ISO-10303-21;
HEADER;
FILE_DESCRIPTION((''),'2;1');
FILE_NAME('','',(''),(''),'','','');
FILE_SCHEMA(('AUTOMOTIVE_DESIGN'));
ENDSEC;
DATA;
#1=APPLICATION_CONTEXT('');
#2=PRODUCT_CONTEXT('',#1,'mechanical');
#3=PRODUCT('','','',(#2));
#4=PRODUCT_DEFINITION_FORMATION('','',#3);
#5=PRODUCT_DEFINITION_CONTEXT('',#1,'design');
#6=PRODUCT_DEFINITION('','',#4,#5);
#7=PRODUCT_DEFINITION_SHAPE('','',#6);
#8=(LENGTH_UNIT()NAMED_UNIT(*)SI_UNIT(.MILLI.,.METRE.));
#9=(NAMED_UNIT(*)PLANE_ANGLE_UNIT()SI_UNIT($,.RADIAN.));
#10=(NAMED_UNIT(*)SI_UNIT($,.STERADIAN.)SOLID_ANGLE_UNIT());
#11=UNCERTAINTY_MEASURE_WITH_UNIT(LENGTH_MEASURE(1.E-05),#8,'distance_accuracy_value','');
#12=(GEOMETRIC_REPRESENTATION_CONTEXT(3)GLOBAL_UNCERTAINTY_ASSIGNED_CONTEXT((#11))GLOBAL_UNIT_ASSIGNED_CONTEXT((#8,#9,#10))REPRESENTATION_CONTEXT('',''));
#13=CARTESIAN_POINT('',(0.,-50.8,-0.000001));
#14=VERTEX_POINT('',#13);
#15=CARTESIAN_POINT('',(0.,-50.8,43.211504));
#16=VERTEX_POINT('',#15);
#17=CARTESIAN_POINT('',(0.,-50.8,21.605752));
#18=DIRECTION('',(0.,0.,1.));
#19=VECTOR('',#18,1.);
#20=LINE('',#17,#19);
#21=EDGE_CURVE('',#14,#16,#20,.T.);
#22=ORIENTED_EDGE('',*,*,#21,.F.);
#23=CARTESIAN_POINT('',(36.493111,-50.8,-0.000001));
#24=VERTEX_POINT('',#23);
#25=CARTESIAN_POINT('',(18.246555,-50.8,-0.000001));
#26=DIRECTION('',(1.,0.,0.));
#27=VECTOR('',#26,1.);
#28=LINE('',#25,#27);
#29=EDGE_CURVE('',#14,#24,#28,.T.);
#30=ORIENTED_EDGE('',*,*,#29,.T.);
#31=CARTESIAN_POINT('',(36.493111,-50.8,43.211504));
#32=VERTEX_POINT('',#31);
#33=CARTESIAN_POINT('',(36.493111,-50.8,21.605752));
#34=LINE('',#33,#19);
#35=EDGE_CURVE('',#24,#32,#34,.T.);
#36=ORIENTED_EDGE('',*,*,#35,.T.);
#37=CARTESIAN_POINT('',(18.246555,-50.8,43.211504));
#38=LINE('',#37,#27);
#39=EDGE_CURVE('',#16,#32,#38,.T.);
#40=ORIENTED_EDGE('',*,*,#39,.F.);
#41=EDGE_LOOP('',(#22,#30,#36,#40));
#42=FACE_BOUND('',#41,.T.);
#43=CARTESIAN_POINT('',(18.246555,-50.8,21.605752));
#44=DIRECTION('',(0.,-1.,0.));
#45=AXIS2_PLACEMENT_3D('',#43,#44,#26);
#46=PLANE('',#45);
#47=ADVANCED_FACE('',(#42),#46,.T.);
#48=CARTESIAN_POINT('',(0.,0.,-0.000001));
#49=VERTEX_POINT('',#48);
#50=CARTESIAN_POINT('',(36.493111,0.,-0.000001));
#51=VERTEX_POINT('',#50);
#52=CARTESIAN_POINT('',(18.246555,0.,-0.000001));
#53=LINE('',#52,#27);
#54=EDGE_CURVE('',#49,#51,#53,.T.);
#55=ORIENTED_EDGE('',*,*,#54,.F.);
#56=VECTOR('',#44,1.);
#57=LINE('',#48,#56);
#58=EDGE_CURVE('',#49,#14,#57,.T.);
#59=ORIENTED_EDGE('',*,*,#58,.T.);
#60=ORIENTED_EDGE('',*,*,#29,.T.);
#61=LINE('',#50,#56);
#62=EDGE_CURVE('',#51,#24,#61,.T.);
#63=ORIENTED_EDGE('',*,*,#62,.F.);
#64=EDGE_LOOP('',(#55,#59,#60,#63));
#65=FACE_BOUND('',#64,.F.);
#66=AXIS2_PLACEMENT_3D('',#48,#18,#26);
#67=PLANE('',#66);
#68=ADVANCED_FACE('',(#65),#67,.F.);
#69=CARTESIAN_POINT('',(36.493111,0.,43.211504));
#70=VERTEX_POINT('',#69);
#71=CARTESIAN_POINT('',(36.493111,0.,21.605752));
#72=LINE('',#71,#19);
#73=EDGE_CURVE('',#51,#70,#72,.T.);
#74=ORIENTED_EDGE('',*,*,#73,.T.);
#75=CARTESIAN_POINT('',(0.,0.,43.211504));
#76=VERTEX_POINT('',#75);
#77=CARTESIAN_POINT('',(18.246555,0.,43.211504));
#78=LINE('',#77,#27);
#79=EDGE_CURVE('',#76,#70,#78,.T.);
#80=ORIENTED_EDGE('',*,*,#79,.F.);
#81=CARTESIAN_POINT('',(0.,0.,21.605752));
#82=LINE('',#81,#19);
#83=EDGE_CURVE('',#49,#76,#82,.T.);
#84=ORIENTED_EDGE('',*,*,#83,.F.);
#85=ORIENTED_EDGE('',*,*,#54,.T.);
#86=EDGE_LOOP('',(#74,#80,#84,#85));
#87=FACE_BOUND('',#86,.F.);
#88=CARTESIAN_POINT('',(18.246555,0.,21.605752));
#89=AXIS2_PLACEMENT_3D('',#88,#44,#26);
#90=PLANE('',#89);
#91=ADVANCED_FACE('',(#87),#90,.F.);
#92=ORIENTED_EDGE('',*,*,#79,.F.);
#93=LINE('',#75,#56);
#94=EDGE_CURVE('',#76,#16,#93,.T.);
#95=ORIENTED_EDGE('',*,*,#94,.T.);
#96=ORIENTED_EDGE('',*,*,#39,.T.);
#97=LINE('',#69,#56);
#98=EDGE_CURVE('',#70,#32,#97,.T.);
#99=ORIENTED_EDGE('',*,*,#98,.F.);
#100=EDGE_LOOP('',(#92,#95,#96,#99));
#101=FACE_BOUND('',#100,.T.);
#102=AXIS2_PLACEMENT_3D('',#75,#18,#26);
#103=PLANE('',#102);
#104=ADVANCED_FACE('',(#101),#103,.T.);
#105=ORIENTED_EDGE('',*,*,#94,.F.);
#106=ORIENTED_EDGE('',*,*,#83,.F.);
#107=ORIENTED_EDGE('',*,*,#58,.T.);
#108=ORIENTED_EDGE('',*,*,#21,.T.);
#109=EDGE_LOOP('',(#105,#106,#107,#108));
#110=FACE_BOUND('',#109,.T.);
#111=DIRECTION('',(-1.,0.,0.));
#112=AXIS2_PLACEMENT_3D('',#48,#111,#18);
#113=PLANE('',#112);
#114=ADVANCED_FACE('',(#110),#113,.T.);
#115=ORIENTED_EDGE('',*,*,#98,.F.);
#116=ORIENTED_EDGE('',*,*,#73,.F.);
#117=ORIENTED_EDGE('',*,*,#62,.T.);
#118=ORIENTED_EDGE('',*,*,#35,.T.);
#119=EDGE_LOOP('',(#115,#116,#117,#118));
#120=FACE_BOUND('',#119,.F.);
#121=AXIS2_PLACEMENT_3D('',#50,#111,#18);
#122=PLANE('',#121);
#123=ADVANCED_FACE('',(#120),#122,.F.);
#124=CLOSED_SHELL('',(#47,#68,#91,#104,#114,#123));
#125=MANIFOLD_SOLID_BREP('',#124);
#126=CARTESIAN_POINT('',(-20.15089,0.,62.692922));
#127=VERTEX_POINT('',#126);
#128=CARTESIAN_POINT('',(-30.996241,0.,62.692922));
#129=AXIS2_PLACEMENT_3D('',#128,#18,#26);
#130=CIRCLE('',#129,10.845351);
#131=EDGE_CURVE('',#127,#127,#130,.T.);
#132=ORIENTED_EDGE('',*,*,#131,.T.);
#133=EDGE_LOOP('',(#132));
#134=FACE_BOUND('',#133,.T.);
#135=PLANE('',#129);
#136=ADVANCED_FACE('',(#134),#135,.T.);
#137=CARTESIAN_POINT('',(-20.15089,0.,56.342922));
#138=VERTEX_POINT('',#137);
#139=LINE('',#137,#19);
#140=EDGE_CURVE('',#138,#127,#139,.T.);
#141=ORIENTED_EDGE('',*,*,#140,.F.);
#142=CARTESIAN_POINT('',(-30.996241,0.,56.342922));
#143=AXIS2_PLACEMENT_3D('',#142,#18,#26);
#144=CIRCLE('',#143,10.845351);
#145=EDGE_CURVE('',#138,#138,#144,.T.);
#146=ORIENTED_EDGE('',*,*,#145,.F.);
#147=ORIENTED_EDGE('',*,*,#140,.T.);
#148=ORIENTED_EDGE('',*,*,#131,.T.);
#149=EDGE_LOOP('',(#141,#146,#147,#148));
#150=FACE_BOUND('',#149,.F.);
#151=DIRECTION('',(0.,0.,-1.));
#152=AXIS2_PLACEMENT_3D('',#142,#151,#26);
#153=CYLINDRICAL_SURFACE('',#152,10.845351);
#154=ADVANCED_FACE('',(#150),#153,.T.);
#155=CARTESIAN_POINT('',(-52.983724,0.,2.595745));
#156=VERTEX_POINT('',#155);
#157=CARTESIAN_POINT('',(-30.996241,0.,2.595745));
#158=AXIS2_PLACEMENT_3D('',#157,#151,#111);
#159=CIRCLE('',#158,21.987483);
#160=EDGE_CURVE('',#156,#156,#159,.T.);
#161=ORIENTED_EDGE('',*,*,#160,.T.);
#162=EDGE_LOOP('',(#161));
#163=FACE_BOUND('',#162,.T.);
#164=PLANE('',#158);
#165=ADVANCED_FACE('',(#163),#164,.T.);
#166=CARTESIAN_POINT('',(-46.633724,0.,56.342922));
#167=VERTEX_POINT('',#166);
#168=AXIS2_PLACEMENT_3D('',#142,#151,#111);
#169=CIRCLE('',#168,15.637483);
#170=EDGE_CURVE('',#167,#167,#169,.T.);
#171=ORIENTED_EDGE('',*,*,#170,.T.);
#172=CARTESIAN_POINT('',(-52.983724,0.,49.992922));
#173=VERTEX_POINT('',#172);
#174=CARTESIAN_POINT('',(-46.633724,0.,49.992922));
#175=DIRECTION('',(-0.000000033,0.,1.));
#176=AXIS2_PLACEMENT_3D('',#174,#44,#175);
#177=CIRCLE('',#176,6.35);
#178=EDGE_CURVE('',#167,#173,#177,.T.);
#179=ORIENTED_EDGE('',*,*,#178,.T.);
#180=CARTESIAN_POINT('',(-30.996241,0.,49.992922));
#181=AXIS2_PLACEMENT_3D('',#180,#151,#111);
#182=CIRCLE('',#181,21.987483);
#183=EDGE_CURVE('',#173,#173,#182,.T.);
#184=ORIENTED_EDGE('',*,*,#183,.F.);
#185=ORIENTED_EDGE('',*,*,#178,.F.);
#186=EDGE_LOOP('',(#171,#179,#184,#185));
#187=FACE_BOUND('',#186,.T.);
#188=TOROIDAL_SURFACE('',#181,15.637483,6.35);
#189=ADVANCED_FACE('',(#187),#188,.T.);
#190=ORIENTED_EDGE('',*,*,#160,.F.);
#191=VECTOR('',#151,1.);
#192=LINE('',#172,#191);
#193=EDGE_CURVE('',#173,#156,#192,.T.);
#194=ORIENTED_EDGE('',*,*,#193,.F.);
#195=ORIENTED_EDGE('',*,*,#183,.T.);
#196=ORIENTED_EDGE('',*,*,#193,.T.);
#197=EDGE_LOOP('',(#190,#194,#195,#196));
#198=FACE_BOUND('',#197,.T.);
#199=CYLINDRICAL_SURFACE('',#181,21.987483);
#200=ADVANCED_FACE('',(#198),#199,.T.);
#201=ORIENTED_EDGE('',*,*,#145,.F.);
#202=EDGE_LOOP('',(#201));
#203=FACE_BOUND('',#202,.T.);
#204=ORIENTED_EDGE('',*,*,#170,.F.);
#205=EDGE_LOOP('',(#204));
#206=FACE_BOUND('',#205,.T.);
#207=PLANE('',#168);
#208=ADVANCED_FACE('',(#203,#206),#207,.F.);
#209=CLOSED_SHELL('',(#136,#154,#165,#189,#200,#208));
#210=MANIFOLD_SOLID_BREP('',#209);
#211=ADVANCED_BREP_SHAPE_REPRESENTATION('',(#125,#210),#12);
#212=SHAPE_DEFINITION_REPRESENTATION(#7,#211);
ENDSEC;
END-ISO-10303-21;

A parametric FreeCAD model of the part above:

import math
import FreeCAD as App
import Part
import Sketcher

V = App.Vector
Q = App.Units.Quantity


def add_polygon(sketch, points):
    """Adds a closed chain of lines whose ends are joined by coincident constraints."""
    first, n = sketch.GeometryCount, len(points)
    for a, b in zip(points, points[1:] + points[:1]):
        sketch.addGeometry(Part.LineSegment(App.Vector(*a, 0), App.Vector(*b, 0)), False)
    for i in range(n):
        sketch.addConstraint(Sketcher.Constraint("Coincident", first + i, 2, first + (i + 1) % n, 1))

doc = App.newDocument("Part")
body = doc.addObject("PartDesign::Body", "Body")

# Sketch on XZ plane
sketch1 = body.newObject("Sketcher::SketchObject", "Sketch")
sketch1.AttachmentSupport = (doc.getObject("XZ_Plane"), [""])
sketch1.MapMode = "FlatFace"
add_polygon(sketch1, [(0, 43), (0, 0), (36, 0), (36, 43)])  # lines 0-3
sketch1.addConstraint([
    Sketcher.Constraint("Vertical", 0),
    Sketcher.Constraint("Horizontal", 1),
    Sketcher.Constraint("Vertical", 2),
    Sketcher.Constraint("Horizontal", 3),
    Sketcher.Constraint("Coincident", 0, 2, -1, 1),
    Sketcher.Constraint("DistanceX", 1, 1, 1, 2, 36.493111),
    Sketcher.Constraint("DistanceY", 0, 2, 0, 1, 43.211505),
])
pad1 = body.newObject("PartDesign::Pad", "Pad")
pad1.Profile = sketch1
pad1.Length = Q("2 in")
body2 = doc.addObject("PartDesign::Body", "Body001")

# Sketch on XZ plane
sketch2 = body2.newObject("Sketcher::SketchObject", "Sketch001")
sketch2.AttachmentSupport = (doc.getObject("XZ_Plane001"), [""])
sketch2.MapMode = "FlatFace"
sketch2.addGeometry([
    Part.LineSegment(V(-31, 56, 0), V(-47, 56, 0)),  # 0
    Part.ArcOfCircle(Part.Circle(V(-47, 50, 0), V(0, 0, 1), 6), math.radians(90), math.radians(180)),  # 1
    Part.LineSegment(V(-53, 50, 0), V(-53, 3, 0)),  # 2
    Part.LineSegment(V(-53, 3, 0), V(-31, 3, 0)),  # 3
    Part.LineSegment(V(-31, 3, 0), V(-31, 56, 0)),  # 4
], False)
sketch2.addGeometry(Part.LineSegment(V(-31, 56, 0), V(-31, 3, 0)), True)  # axis
sketch2.addConstraint([
    Sketcher.Constraint("Tangent", 0, 2, 1, 1),
    Sketcher.Constraint("Tangent", 1, 2, 2, 1),
    Sketcher.Constraint("Coincident", 2, 2, 3, 1),
    Sketcher.Constraint("Coincident", 3, 2, 4, 1),
    Sketcher.Constraint("Coincident", 4, 2, 0, 1),
    Sketcher.Constraint("Horizontal", 0),
    Sketcher.Constraint("Vertical", 2),
    Sketcher.Constraint("Horizontal", 3),
    Sketcher.Constraint("Vertical", 4),
    Sketcher.Constraint("Vertical", 5),
    Sketcher.Constraint("Coincident", 5, 1, 4, 2),
    Sketcher.Constraint("Horizontal", 2, 2, 5, 2),
    Sketcher.Constraint("Radius", 1, Q("0.25 in")),
    Sketcher.Constraint("DistanceX", 0, 2, 0, 1, 15.637483),
    Sketcher.Constraint("DistanceY", 2, 2, 2, 1, 47.397177),
    Sketcher.Constraint("DistanceY", -1, 1, 1, 3, 49.992922),
    Sketcher.Constraint("DistanceX", 3, 2, -1, 1, 30.996241),
])
revolution = body2.newObject("PartDesign::Revolution", "Revolution")
revolution.Profile = sketch2
revolution.ReferenceAxis = (sketch2, ["Axis0"])
revolution.Angle = 360

# Sketch on XY plane
sketch3 = body2.newObject("Sketcher::SketchObject", "Sketch002")
sketch3.AttachmentSupport = (doc.getObject("XY_Plane001"), [""])
sketch3.MapMode = "FlatFace"
sketch3.AttachmentOffset = App.Placement(V(0, 0, 56.342922), App.Rotation())
sketch3.addGeometry(Part.Circle(V(-31, 0, 0), V(0, 0, 1), 11), False)
sketch3.addConstraint([
    Sketcher.Constraint("PointOnObject", 0, 3, -1),
    Sketcher.Constraint("Diameter", 0, 21.690702),
    Sketcher.Constraint("DistanceX", 0, 3, -1, 1, 30.996241),
])
pad2 = body2.newObject("PartDesign::Pad", "Pad001")
pad2.Profile = sketch3
pad2.Length = Q("0.25 in")

doc.recompute()
